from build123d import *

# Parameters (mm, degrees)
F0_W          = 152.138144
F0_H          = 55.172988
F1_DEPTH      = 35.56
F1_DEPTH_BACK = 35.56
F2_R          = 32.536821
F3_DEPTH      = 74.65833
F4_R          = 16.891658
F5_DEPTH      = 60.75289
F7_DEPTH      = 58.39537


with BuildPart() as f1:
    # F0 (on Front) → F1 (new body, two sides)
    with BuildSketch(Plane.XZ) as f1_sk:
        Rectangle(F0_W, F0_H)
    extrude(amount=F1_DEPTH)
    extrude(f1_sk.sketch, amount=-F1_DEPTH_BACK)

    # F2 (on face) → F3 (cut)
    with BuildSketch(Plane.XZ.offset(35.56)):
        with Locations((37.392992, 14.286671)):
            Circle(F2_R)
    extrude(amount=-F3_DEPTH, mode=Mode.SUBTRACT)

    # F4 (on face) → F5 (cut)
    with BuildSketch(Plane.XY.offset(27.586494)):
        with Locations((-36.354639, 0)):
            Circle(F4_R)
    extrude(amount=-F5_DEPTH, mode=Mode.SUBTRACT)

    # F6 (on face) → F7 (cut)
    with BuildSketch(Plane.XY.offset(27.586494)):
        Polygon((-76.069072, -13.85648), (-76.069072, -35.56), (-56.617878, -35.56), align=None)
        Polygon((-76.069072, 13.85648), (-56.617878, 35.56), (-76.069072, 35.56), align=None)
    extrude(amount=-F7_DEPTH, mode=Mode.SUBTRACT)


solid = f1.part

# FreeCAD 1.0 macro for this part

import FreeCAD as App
import Part
import Sketcher

V = App.Vector
Q = App.Units.Quantity

doc = App.newDocument("Part")
params = doc.addObject("Spreadsheet::Sheet", "Params")
for row, (alias, value) in enumerate([
    ("pad1_length", "1.4 in"),
    ("pad1_length2", "1.4 in"),
    ("pocket1_length", "74.65833 mm"),
    ("pocket2_length", "60.75289 mm"),
    ("pocket3_length", "58.39537 mm"),
], start=1):
    params.set(f"A{row}", alias)
    params.set(f"B{row}", "=" + value)
    params.setAlias(f"B{row}", alias)

body = doc.addObject("PartDesign::Body", "Body")

sketch1 = doc.addObject("Sketcher::SketchObject", "Sketch")
body.addObject(sketch1)
sketch1.AttachmentSupport = (doc.XZ_Plane, [""])
sketch1.MapMode = "FlatFace"
sketch1.addGeometry([
    Part.LineSegment(V(-76, 28, 0), V(-76, -28, 0)),
    Part.LineSegment(V(-76, -28, 0), V(76, -28, 0)),
    Part.LineSegment(V(76, -28, 0), V(76, 28, 0)),
    Part.LineSegment(V(76, 28, 0), V(-76, 28, 0)),
], False)
sketch1.addConstraint([
    Sketcher.Constraint("Coincident", 0, 2, 1, 1),
    Sketcher.Constraint("Coincident", 1, 2, 2, 1),
    Sketcher.Constraint("Coincident", 2, 2, 3, 1),
    Sketcher.Constraint("Coincident", 3, 2, 0, 1),
    Sketcher.Constraint("Vertical", 0),
    Sketcher.Constraint("Horizontal", 1),
    Sketcher.Constraint("Vertical", 2),
    Sketcher.Constraint("Horizontal", 3),
    Sketcher.Constraint("Symmetric", 0, 2, 2, 2, -1, 1),
    Sketcher.Constraint("DistanceX", 1, 1, 1, 2, Q("152.138144 mm")),
    Sketcher.Constraint("DistanceY", 0, 2, 0, 1, Q("55.172988 mm")),
])
pad1 = doc.addObject("PartDesign::Pad", "Pad")
body.addObject(pad1)
pad1.Profile = sketch1
pad1.Type = "TwoLengths"
pad1.setExpression("Length", "Params.pad1_length")
pad1.setExpression("Length2", "Params.pad1_length2")

sketch2 = doc.addObject("Sketcher::SketchObject", "Sketch001")
body.addObject(sketch2)
sketch2.AttachmentSupport = (doc.XZ_Plane, [""])
sketch2.MapMode = "FlatFace"
sketch2.AttachmentOffset = App.Placement(V(0, 0, 1.4 * 25.4), App.Rotation())
sketch2.addGeometry(Part.Circle(V(37, 14, 0), V(0, 0, 1), 33), False)
sketch2.addConstraint([
    Sketcher.Constraint("Diameter", 0, Q("65.073642 mm")),
    Sketcher.Constraint("DistanceY", -1, 1, 0, 3, Q("14.286671 mm")),
    Sketcher.Constraint("DistanceX", -1, 1, 0, 3, Q("37.392992 mm")),
])
pocket1 = doc.addObject("PartDesign::Pocket", "Pocket")
body.addObject(pocket1)
pocket1.Profile = sketch2
pocket1.setExpression("Length", "Params.pocket1_length")

sketch3 = doc.addObject("Sketcher::SketchObject", "Sketch002")
body.addObject(sketch3)
sketch3.AttachmentSupport = (doc.XY_Plane, [""])
sketch3.MapMode = "FlatFace"
sketch3.AttachmentOffset = App.Placement(V(0, 0, 27.586494), App.Rotation())
sketch3.addGeometry(Part.Circle(V(-36, 0, 0), V(0, 0, 1), 17), False)
sketch3.addConstraint([
    Sketcher.Constraint("PointOnObject", 0, 3, -1),
    Sketcher.Constraint("Diameter", 0, Q("33.783316 mm")),
    Sketcher.Constraint("DistanceX", 0, 3, -1, 1, Q("36.354639 mm")),
])
pocket2 = doc.addObject("PartDesign::Pocket", "Pocket001")
body.addObject(pocket2)
pocket2.Profile = sketch3
pocket2.setExpression("Length", "Params.pocket2_length")

sketch4 = doc.addObject("Sketcher::SketchObject", "Sketch003")
body.addObject(sketch4)
sketch4.AttachmentSupport = (doc.XY_Plane, [""])
sketch4.MapMode = "FlatFace"
sketch4.AttachmentOffset = App.Placement(V(0, 0, 27.586494), App.Rotation())
sketch4.addGeometry([
    Part.LineSegment(V(-76, -14, 0), V(-76, -36, 0)),
    Part.LineSegment(V(-76, -36, 0), V(-57, -36, 0)),
    Part.LineSegment(V(-57, -36, 0), V(-76, -14, 0)),
    Part.LineSegment(V(-76, 14, 0), V(-57, 36, 0)),
    Part.LineSegment(V(-57, 36, 0), V(-76, 36, 0)),
    Part.LineSegment(V(-76, 36, 0), V(-76, 14, 0)),
], False)
sketch4.addConstraint([
    Sketcher.Constraint("Coincident", 0, 2, 1, 1),
    Sketcher.Constraint("Coincident", 1, 2, 2, 1),
    Sketcher.Constraint("Coincident", 2, 2, 0, 1),
    Sketcher.Constraint("Coincident", 3, 2, 4, 1),
    Sketcher.Constraint("Coincident", 4, 2, 5, 1),
    Sketcher.Constraint("Coincident", 5, 2, 3, 1),
    Sketcher.Constraint("Vertical", 0),
    Sketcher.Constraint("Horizontal", 1),
    Sketcher.Constraint("Horizontal", 4),
    Sketcher.Constraint("Vertical", 5),
    Sketcher.Constraint("Symmetric", 1, 2, 3, 2, -1),
    Sketcher.Constraint("Symmetric", 2, 2, 5, 2, -1),
    Sketcher.Constraint("DistanceY", 0, 2, -1, 1, Q("1.4 in")),
    Sketcher.Constraint("DistanceY", 0, 2, 0, 1, Q("21.70352 mm")),
    Sketcher.Constraint("DistanceX", 1, 1, 1, 2, Q("19.451194 mm")),
    Sketcher.Constraint("DistanceX", 0, 2, -1, 1, Q("76.069072 mm")),
])
pocket3 = doc.addObject("PartDesign::Pocket", "Pocket002")
body.addObject(pocket3)
pocket3.Profile = sketch4
pocket3.setExpression("Length", "Params.pocket3_length")

doc.recompute()
